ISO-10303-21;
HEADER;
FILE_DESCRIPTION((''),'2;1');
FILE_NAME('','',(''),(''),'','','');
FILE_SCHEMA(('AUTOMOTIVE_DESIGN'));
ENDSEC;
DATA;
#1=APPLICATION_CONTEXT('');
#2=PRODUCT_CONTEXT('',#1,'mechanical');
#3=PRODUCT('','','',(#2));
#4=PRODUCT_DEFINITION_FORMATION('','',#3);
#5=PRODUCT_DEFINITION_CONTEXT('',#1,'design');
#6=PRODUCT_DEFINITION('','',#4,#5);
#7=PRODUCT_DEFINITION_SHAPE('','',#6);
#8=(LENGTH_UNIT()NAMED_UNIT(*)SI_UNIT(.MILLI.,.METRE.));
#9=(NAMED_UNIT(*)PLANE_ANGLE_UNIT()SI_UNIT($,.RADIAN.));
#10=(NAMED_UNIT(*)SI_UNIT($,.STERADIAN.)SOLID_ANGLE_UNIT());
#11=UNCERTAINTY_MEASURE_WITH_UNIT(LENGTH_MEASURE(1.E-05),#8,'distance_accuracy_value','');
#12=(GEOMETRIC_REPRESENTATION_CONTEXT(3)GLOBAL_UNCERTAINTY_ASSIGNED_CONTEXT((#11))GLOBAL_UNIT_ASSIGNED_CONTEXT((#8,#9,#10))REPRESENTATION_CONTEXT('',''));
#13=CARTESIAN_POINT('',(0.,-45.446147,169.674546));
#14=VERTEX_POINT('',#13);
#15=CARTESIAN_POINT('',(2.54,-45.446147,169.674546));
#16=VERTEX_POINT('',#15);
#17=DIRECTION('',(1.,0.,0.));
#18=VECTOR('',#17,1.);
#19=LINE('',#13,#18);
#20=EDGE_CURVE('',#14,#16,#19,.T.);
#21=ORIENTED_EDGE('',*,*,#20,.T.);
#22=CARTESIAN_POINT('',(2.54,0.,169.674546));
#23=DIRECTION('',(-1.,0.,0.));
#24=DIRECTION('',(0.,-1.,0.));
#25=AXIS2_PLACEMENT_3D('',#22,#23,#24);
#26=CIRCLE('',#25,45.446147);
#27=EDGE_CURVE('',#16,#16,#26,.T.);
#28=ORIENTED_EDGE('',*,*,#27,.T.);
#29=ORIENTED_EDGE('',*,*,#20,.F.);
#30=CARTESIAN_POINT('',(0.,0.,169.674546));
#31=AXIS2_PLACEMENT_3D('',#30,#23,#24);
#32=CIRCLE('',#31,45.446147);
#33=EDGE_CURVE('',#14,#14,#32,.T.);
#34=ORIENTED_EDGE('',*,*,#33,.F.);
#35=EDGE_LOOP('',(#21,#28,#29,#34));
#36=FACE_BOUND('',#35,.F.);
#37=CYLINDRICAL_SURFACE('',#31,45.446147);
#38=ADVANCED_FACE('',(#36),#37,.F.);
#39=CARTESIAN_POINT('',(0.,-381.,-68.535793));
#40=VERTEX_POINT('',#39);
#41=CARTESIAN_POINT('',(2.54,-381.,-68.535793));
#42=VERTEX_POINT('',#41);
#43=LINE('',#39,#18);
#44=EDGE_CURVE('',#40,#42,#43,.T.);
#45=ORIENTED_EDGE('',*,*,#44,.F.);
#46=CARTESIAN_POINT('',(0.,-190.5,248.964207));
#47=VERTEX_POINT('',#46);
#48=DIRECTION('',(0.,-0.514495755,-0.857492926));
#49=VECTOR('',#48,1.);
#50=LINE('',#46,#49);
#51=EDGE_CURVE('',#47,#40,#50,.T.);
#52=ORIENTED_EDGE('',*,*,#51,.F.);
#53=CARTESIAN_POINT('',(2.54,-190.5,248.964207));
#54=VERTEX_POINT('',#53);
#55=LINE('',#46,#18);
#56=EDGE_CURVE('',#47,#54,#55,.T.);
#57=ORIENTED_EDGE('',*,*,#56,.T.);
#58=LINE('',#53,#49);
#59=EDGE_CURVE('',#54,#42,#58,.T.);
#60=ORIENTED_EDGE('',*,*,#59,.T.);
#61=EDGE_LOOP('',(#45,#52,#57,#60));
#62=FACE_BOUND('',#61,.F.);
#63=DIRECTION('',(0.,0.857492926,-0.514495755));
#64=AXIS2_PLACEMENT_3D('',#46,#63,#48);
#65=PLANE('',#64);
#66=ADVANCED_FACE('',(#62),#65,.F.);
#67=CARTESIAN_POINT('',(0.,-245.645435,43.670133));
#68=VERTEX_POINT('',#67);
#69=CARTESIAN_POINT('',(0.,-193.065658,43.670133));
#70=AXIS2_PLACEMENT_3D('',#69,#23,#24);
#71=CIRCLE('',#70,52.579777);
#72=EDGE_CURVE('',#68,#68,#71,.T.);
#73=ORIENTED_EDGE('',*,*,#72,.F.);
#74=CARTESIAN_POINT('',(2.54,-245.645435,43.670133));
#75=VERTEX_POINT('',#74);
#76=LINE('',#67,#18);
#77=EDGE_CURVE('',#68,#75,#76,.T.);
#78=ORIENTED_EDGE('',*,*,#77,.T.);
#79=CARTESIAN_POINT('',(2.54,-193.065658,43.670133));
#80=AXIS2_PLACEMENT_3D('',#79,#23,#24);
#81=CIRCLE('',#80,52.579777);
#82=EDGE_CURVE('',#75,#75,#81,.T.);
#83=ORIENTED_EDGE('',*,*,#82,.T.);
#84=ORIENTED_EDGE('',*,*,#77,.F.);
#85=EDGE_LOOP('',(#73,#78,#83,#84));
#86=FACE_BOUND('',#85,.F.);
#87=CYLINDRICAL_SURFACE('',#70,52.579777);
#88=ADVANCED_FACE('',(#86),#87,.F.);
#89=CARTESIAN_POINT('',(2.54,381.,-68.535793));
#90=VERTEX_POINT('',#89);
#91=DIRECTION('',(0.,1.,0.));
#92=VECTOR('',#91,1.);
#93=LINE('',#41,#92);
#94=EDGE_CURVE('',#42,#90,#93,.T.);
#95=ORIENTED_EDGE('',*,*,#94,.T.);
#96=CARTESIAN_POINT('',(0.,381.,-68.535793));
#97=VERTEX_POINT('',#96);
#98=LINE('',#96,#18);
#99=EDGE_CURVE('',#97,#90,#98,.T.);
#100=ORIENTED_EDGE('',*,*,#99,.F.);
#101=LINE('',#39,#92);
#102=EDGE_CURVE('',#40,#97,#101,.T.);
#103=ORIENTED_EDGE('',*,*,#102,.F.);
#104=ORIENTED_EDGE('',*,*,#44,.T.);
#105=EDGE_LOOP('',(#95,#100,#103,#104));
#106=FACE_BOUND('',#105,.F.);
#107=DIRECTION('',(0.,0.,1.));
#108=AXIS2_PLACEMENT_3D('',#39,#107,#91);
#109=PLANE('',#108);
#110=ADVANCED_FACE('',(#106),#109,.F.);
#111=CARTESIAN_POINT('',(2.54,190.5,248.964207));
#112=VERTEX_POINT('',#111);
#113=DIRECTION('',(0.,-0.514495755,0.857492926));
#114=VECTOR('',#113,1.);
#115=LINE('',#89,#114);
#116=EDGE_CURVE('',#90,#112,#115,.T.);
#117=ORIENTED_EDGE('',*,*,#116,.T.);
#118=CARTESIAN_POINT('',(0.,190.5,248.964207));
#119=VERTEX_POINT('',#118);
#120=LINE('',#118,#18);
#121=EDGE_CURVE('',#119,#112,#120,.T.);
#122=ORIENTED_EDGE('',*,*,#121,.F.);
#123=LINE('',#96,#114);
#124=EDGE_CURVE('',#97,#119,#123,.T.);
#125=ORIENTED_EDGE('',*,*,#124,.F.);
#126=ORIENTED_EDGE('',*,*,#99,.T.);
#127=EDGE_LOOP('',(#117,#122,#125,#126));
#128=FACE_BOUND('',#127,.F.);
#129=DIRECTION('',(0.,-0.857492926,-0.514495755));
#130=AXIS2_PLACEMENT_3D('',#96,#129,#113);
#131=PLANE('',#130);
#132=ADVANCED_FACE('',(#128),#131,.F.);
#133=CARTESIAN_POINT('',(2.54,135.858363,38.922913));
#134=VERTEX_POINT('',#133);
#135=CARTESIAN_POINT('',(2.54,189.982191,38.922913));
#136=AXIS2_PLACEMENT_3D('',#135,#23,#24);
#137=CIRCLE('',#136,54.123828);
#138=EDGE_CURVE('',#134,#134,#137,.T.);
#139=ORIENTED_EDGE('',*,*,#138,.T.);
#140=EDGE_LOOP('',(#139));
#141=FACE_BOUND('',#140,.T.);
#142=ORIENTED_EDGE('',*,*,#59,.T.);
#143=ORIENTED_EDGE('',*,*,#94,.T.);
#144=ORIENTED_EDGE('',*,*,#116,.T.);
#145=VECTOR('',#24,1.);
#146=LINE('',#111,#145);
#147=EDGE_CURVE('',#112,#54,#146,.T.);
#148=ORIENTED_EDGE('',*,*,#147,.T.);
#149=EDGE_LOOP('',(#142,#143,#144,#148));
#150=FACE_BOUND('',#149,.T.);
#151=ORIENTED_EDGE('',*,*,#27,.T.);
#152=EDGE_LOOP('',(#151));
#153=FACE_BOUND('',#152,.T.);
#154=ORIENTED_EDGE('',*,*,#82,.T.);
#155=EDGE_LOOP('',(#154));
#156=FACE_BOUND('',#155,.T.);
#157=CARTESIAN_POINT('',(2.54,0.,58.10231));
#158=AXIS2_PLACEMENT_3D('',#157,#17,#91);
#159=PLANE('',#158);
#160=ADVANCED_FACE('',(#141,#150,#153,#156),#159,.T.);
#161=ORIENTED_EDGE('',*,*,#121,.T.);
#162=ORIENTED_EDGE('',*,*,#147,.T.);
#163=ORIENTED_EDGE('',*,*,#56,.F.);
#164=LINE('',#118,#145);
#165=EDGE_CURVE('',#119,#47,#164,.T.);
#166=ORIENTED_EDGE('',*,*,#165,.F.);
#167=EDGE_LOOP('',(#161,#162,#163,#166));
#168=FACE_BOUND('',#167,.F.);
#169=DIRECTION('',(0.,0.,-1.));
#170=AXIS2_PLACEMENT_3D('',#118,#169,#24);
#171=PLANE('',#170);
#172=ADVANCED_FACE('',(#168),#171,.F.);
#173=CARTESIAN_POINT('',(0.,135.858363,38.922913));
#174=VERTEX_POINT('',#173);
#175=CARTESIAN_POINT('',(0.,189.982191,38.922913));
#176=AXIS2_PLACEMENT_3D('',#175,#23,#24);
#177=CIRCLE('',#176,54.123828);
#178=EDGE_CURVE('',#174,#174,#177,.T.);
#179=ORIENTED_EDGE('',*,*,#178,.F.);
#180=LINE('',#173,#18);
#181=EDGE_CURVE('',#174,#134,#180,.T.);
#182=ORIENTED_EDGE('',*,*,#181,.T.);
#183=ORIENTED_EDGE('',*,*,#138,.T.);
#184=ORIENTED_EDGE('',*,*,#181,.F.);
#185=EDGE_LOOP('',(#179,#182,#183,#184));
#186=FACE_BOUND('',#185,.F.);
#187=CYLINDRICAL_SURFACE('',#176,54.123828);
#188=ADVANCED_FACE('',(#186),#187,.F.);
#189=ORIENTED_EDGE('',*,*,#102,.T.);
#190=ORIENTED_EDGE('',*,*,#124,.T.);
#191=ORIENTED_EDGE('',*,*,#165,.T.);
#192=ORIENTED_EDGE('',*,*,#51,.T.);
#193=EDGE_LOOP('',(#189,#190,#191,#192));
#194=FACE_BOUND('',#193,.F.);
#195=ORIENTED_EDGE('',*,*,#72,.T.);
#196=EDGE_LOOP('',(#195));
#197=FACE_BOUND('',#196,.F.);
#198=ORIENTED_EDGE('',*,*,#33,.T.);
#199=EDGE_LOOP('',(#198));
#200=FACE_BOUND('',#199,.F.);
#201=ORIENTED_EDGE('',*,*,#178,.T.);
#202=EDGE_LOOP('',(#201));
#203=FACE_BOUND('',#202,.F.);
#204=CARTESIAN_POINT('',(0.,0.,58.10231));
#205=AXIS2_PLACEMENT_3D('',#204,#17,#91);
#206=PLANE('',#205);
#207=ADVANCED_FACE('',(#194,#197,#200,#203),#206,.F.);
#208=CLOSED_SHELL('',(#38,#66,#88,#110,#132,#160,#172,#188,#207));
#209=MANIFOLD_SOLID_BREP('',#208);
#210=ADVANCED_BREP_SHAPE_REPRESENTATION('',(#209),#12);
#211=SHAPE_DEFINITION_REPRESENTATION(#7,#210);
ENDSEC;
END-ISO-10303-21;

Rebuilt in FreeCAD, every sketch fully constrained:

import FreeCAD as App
import Part
import Sketcher

V = App.Vector
Q = App.Units.Quantity


def add_polygon(sketch, points):
    """Adds a closed chain of lines whose ends are joined by coincident constraints."""
    first, n = sketch.GeometryCount, len(points)
    for a, b in zip(points, points[1:] + points[:1]):
        sketch.addGeometry(Part.LineSegment(App.Vector(*a, 0), App.Vector(*b, 0)), False)
    for i in range(n):
        sketch.addConstraint(Sketcher.Constraint("Coincident", first + i, 2, first + (i + 1) % n, 1))

doc = App.newDocument("Part")
body = doc.addObject("PartDesign::Body", "Body")

sketch1 = body.newObject("Sketcher::SketchObject", "Sketch")
sketch1.AttachmentSupport = (doc.getObject("YZ_Plane"), [""])
sketch1.MapMode = "FlatFace"
add_polygon(sketch1, [(190.5, 248.964207), (-190.5, 248.964207), (-381, -68.535793), (381, -68.535793)])
sketch1.addConstraint(Sketcher.Constraint("Horizontal", 0))
sketch1.addConstraint(Sketcher.Constraint("Horizontal", 2))
sketch1.addConstraint(Sketcher.Constraint("Equal", 1, 3))
sketch1.addConstraint(Sketcher.Constraint("DistanceX", 0, 2, 0, 1, Q("15 in")))
sketch1.addConstraint(Sketcher.Constraint("DistanceX", 2, 1, 2, 2, Q("30 in")))
sketch1.addConstraint(Sketcher.Constraint("DistanceX", 1, 2, -1, 1, Q("15 in")))
sketch1.addConstraint(Sketcher.Constraint("DistanceY", 1, 2, 0, 2, Q("12.5 in")))
sketch1.addConstraint(Sketcher.Constraint("DistanceY", -1, 1, 0, 2, 248.964207))
pad1 = body.newObject("PartDesign::Pad", "Pad")
pad1.Profile = sketch1
pad1.Length = Q("0.1 in")

sketch2 = body.newObject("Sketcher::SketchObject", "Sketch001")
sketch2.AttachmentSupport = (doc.getObject("YZ_Plane"), [""])
sketch2.MapMode = "FlatFace"
sketch2.addGeometry(Part.Circle(V(189.982191, 38.922913, 0), V(0, 0, 1), 54.123828), False)
sketch2.addGeometry(Part.Circle(V(-193.065658, 43.670133, 0), V(0, 0, 1), 52.579777), False)
sketch2.addGeometry(Part.Circle(V(0, 169.674546, 0), V(0, 0, 1), 45.446147), False)
sketch2.addConstraint(Sketcher.Constraint("PointOnObject", 2, 3, -2))
sketch2.addConstraint(Sketcher.Constraint("Diameter", 0, 108.247656))
sketch2.addConstraint(Sketcher.Constraint("Diameter", 1, 105.159554))
sketch2.addConstraint(Sketcher.Constraint("Diameter", 2, 90.892294))
sketch2.addConstraint(Sketcher.Constraint("DistanceX", -1, 1, 0, 3, 189.982191))
sketch2.addConstraint(Sketcher.Constraint("DistanceX", 1, 3, -1, 1, 193.065658))
sketch2.addConstraint(Sketcher.Constraint("DistanceY", 0, 3, 1, 3, 4.74722))
sketch2.addConstraint(Sketcher.Constraint("DistanceY", -1, 1, 0, 3, 38.922913))
sketch2.addConstraint(Sketcher.Constraint("DistanceY", -1, 1, 2, 3, 169.674546))
pocket1 = body.newObject("PartDesign::Pocket", "Pocket")
pocket1.Profile = sketch2
pocket1.Type = "ThroughAll"
pocket1.Reversed = True

doc.recompute()
